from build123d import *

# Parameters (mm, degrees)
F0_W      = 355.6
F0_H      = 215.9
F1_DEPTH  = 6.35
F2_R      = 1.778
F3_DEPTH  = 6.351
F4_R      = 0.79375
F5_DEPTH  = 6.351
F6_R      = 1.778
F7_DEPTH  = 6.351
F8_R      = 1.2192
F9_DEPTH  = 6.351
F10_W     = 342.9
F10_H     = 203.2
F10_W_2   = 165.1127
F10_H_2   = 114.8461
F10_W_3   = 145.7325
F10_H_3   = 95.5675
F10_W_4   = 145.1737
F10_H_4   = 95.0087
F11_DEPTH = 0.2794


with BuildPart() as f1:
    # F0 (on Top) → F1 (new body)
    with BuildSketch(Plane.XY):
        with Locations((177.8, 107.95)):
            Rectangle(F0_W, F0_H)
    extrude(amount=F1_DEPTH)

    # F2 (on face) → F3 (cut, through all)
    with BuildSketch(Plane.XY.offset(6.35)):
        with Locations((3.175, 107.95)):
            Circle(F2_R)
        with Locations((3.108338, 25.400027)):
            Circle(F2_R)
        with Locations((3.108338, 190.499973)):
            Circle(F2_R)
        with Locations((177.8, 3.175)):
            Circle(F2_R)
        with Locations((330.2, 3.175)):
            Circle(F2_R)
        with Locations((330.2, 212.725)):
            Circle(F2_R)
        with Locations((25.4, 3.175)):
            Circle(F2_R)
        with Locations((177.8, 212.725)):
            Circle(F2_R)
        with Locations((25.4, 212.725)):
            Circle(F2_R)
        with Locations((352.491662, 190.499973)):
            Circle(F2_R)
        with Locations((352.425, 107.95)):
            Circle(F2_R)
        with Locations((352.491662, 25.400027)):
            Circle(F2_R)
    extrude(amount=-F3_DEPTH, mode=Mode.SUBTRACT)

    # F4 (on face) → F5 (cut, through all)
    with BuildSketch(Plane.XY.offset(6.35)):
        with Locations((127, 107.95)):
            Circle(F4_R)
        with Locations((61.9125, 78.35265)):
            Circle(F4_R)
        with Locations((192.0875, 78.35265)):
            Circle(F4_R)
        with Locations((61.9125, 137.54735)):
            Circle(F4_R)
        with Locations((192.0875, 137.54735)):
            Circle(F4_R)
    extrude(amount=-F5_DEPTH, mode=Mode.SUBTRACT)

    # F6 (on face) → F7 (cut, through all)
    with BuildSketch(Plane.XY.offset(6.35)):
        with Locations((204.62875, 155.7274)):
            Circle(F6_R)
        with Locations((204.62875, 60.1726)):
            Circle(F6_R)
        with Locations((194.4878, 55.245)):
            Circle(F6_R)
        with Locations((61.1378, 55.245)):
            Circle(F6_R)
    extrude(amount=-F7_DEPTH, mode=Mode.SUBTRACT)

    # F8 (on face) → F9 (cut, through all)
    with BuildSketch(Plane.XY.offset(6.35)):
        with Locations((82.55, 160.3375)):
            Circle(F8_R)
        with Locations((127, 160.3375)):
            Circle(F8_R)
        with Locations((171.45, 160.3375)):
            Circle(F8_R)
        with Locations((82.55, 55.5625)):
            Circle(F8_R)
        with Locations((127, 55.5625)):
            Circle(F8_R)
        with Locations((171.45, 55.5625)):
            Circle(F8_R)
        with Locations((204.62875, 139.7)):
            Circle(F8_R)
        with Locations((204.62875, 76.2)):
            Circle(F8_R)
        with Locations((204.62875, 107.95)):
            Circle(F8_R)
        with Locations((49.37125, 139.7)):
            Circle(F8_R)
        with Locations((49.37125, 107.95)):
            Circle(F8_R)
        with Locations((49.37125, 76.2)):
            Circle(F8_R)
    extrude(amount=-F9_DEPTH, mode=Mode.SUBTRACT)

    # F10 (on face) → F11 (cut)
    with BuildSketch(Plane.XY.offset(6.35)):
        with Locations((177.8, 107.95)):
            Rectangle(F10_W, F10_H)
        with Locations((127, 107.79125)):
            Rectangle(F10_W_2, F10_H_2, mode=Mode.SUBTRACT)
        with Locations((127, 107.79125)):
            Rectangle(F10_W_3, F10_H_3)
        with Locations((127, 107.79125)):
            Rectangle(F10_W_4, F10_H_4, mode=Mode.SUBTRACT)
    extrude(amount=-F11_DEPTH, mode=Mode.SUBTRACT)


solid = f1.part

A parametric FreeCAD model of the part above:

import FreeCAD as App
import Part
import Sketcher
Q = App.Units.Quantity

doc = App.newDocument("Part")
body = doc.addObject("PartDesign::Body", "Body")

# Sketch on XY plane
sketch1 = doc.addObject("Sketcher::SketchObject", "Sketch")
body.addObject(sketch1)
sketch1.AttachmentSupport = (doc.XY_Plane, [""])
sketch1.MapMode = "FlatFace"
sketch1.addGeometry([
    Part.LineSegment(App.Vector(0, 216, 0), App.Vector(0, 0, 0)),
    Part.LineSegment(App.Vector(0, 0, 0), App.Vector(356, 0, 0)),
    Part.LineSegment(App.Vector(356, 0, 0), App.Vector(356, 216, 0)),
    Part.LineSegment(App.Vector(356, 216, 0), App.Vector(0, 216, 0)),
], False)
sketch1.addConstraint([
    Sketcher.Constraint("Coincident", 0, 2, 1, 1),
    Sketcher.Constraint("Coincident", 1, 2, 2, 1),
    Sketcher.Constraint("Coincident", 2, 2, 3, 1),
    Sketcher.Constraint("Coincident", 3, 2, 0, 1),
    Sketcher.Constraint("Vertical", 0),
    Sketcher.Constraint("Horizontal", 1),
    Sketcher.Constraint("Vertical", 2),
    Sketcher.Constraint("Horizontal", 3),
    Sketcher.Constraint("Coincident", 0, 2, -1, 1),
    Sketcher.Constraint("DistanceX", 1, 1, 1, 2, Q("14 in")),
    Sketcher.Constraint("DistanceY", 0, 2, 0, 1, Q("8.5 in")),
])
pad1 = doc.addObject("PartDesign::Pad", "Pad")
body.addObject(pad1)
pad1.Profile = sketch1
pad1.Length = Q("0.25 in")

# Sketch on XY plane
sketch2 = doc.addObject("Sketcher::SketchObject", "Sketch001")
body.addObject(sketch2)
sketch2.AttachmentSupport = (doc.XY_Plane, [""])
sketch2.MapMode = "FlatFace"
sketch2.AttachmentOffset = App.Placement(App.Vector(0, 0, 0.25 * 25.4), App.Rotation())
sketch2.addGeometry([
    Part.Circle(App.Vector(3.2, 108, 0), App.Vector(0, 0, 1), 1.8),  # 0
    Part.Circle(App.Vector(3.1, 25.4, 0), App.Vector(0, 0, 1), 1.8),  # 1
    Part.Circle(App.Vector(3.1, 190.5, 0), App.Vector(0, 0, 1), 1.8),  # 2
    Part.Circle(App.Vector(177.8, 3.2, 0), App.Vector(0, 0, 1), 1.8),  # 3
    Part.Circle(App.Vector(330.2, 3.2, 0), App.Vector(0, 0, 1), 1.8),  # 4
    Part.Circle(App.Vector(330.2, 212.7, 0), App.Vector(0, 0, 1), 1.8),  # 5
    Part.Circle(App.Vector(25.4, 3.2, 0), App.Vector(0, 0, 1), 1.8),  # 6
    Part.Circle(App.Vector(177.8, 212.7, 0), App.Vector(0, 0, 1), 1.8),  # 7
    Part.Circle(App.Vector(25.4, 212.7, 0), App.Vector(0, 0, 1), 1.8),  # 8
    Part.Circle(App.Vector(352.5, 190.5, 0), App.Vector(0, 0, 1), 1.8),  # 9
    Part.Circle(App.Vector(352.4, 108, 0), App.Vector(0, 0, 1), 1.8),  # 10
    Part.Circle(App.Vector(352.5, 25.4, 0), App.Vector(0, 0, 1), 1.8),  # 11
], False)
sketch2.addConstraint([
    Sketcher.Constraint("Equal", 0, 1),
    Sketcher.Constraint("Equal", 1, 2),
    Sketcher.Constraint("Equal", 2, 3),
    Sketcher.Constraint("Equal", 3, 4),
    Sketcher.Constraint("Equal", 4, 5),
    Sketcher.Constraint("Equal", 5, 6),
    Sketcher.Constraint("Equal", 6, 7),
    Sketcher.Constraint("Equal", 7, 8),
    Sketcher.Constraint("Equal", 8, 9),
    Sketcher.Constraint("Equal", 9, 10),
    Sketcher.Constraint("Equal", 10, 11),
    Sketcher.Constraint("Horizontal", 3, 3, 4, 3),
    Sketcher.Constraint("Horizontal", 4, 3, 6, 3),
    Sketcher.Constraint("Horizontal", 5, 3, 7, 3),
    Sketcher.Constraint("Horizontal", 7, 3, 8, 3),
    Sketcher.Constraint("Horizontal", 2, 3, 9, 3),
    Sketcher.Constraint("Horizontal", 0, 3, 10, 3),
    Sketcher.Constraint("Horizontal", 1, 3, 11, 3),
    Sketcher.Constraint("Vertical", 1, 3, 2, 3),
    Sketcher.Constraint("Vertical", 4, 3, 5, 3),
    Sketcher.Constraint("Vertical", 3, 3, 7, 3),
    Sketcher.Constraint("Vertical", 6, 3, 8, 3),
    Sketcher.Constraint("Vertical", 9, 3, 11, 3),
    Sketcher.Constraint("Diameter", 0, Q("0.14 in")),
    Sketcher.Constraint("DistanceX", -1, 1, 3, 3, Q("7 in")),
    Sketcher.Constraint("DistanceX", -1, 1, 4, 3, Q("13 in")),
    Sketcher.Constraint("DistanceX", -1, 1, 6, 3, Q("1 in")),
    Sketcher.Constraint("DistanceY", -1, 1, 0, 3, Q("4.25 in")),
    Sketcher.Constraint("DistanceY", 4, 3, 5, 3, Q("8.25 in")),
    Sketcher.Constraint("DistanceX", -1, 1, 0, 3, Q("0.125 in")),
    Sketcher.Constraint("DistanceY", -1, 1, 3, 3, Q("0.125 in")),
    Sketcher.Constraint("DistanceX", -1, 1, 10, 3, Q("13.875 in")),
    Sketcher.Constraint("DistanceX", -1, 1, 9, 3, 352.491662),
    Sketcher.Constraint("DistanceX", 1, 3, 3, 3, 174.691662),
    Sketcher.Constraint("DistanceY", -1, 1, 1, 3, 25.400027),
    Sketcher.Constraint("DistanceY", -1, 1, 2, 3, 190.499973),
])
pocket1 = doc.addObject("PartDesign::Pocket", "Pocket")
body.addObject(pocket1)
pocket1.Profile = sketch2
pocket1.Type = "ThroughAll"

# Sketch on XY plane
sketch3 = doc.addObject("Sketcher::SketchObject", "Sketch002")
body.addObject(sketch3)
sketch3.AttachmentSupport = (doc.XY_Plane, [""])
sketch3.MapMode = "FlatFace"
sketch3.AttachmentOffset = App.Placement(App.Vector(0, 0, 0.25 * 25.4), App.Rotation())
sketch3.addGeometry([
    Part.Circle(App.Vector(127, 108, 0), App.Vector(0, 0, 1), 0.8),  # 0
    Part.Circle(App.Vector(61.9, 78.4, 0), App.Vector(0, 0, 1), 0.8),  # 1
    Part.Circle(App.Vector(192.1, 78.4, 0), App.Vector(0, 0, 1), 0.8),  # 2
    Part.Circle(App.Vector(61.9, 137.5, 0), App.Vector(0, 0, 1), 0.8),  # 3
    Part.Circle(App.Vector(192.1, 137.5, 0), App.Vector(0, 0, 1), 0.8),  # 4
], False)
sketch3.addConstraint([
    Sketcher.Constraint("Equal", 0, 1),
    Sketcher.Constraint("Equal", 1, 2),
    Sketcher.Constraint("Equal", 2, 3),
    Sketcher.Constraint("Equal", 3, 4),
    Sketcher.Constraint("Horizontal", 1, 3, 2, 3),
    Sketcher.Constraint("Horizontal", 3, 3, 4, 3),
    Sketcher.Constraint("Vertical", 1, 3, 3, 3),
    Sketcher.Constraint("Vertical", 2, 3, 4, 3),
    Sketcher.Constraint("Diameter", 0, Q("0.0625 in")),
    Sketcher.Constraint("DistanceX", -1, 1, 0, 3, Q("5 in")),
    Sketcher.Constraint("DistanceY", -1, 1, 0, 3, Q("4.25 in")),
    Sketcher.Constraint("DistanceX", -1, 1, 1, 3, Q("2.4375 in")),
    Sketcher.Constraint("DistanceX", -1, 1, 2, 3, Q("7.5625 in")),
    Sketcher.Constraint("DistanceY", 1, 3, 3, 3, Q("2.3305 in")),
    Sketcher.Constraint("DistanceY", -1, 1, 1, 3, 78.35265),
])
pocket2 = doc.addObject("PartDesign::Pocket", "Pocket001")
body.addObject(pocket2)
pocket2.Profile = sketch3
pocket2.Type = "ThroughAll"

# Sketch on XY plane
sketch4 = doc.addObject("Sketcher::SketchObject", "Sketch003")
body.addObject(sketch4)
sketch4.AttachmentSupport = (doc.XY_Plane, [""])
sketch4.MapMode = "FlatFace"
sketch4.AttachmentOffset = App.Placement(App.Vector(0, 0, 0.25 * 25.4), App.Rotation())
sketch4.addGeometry([
    Part.Circle(App.Vector(204.6, 155.7, 0), App.Vector(0, 0, 1), 1.8),
    Part.Circle(App.Vector(204.6, 60.2, 0), App.Vector(0, 0, 1), 1.8),
    Part.Circle(App.Vector(194.5, 55.2, 0), App.Vector(0, 0, 1), 1.8),
    Part.Circle(App.Vector(61.1, 55.2, 0), App.Vector(0, 0, 1), 1.8),
], False)
sketch4.addConstraint([
    Sketcher.Constraint("Equal", 0, 1),
    Sketcher.Constraint("Equal", 1, 2),
    Sketcher.Constraint("Equal", 2, 3),
    Sketcher.Constraint("Horizontal", 2, 3, 3, 3),
    Sketcher.Constraint("Vertical", 0, 3, 1, 3),
    Sketcher.Constraint("Diameter", 0, Q("0.14 in")),
    Sketcher.Constraint("DistanceX", 3, 3, 2, 3, Q("5.25 in")),
    Sketcher.Constraint("DistanceY", -1, 1, 0, 3, Q("6.131 in")),
    Sketcher.Constraint("DistanceY", -1, 1, 1, 3, Q("2.369 in")),
    Sketcher.Constraint("DistanceX", -1, 1, 2, 3, Q("7.657 in")),
    Sketcher.Constraint("DistanceY", -1, 1, 2, 3, Q("2.175 in")),
    Sketcher.Constraint("DistanceX", -1, 1, 0, 3, 204.62875),
])
pocket3 = doc.addObject("PartDesign::Pocket", "Pocket002")
body.addObject(pocket3)
pocket3.Profile = sketch4
pocket3.Type = "ThroughAll"

# Sketch on XY plane
sketch5 = doc.addObject("Sketcher::SketchObject", "Sketch004")
body.addObject(sketch5)
sketch5.AttachmentSupport = (doc.XY_Plane, [""])
sketch5.MapMode = "FlatFace"
sketch5.AttachmentOffset = App.Placement(App.Vector(0, 0, 0.25 * 25.4), App.Rotation())
sketch5.addGeometry([
    Part.Circle(App.Vector(82.5, 160.3, 0), App.Vector(0, 0, 1), 1.2),  # 0
    Part.Circle(App.Vector(127, 160.3, 0), App.Vector(0, 0, 1), 1.2),  # 1
    Part.Circle(App.Vector(171.4, 160.3, 0), App.Vector(0, 0, 1), 1.2),  # 2
    Part.Circle(App.Vector(82.5, 55.6, 0), App.Vector(0, 0, 1), 1.2),  # 3
    Part.Circle(App.Vector(127, 55.6, 0), App.Vector(0, 0, 1), 1.2),  # 4
    Part.Circle(App.Vector(171.4, 55.6, 0), App.Vector(0, 0, 1), 1.2),  # 5
    Part.Circle(App.Vector(204.6, 139.7, 0), App.Vector(0, 0, 1), 1.2),  # 6
    Part.Circle(App.Vector(204.6, 76.2, 0), App.Vector(0, 0, 1), 1.2),  # 7
    Part.Circle(App.Vector(204.6, 108, 0), App.Vector(0, 0, 1), 1.2),  # 8
    Part.Circle(App.Vector(49.4, 139.7, 0), App.Vector(0, 0, 1), 1.2),  # 9
    Part.Circle(App.Vector(49.4, 108, 0), App.Vector(0, 0, 1), 1.2),  # 10
    Part.Circle(App.Vector(49.4, 76.2, 0), App.Vector(0, 0, 1), 1.2),  # 11
], False)
sketch5.addConstraint([
    Sketcher.Constraint("Equal", 0, 1),
    Sketcher.Constraint("Equal", 1, 2),
    Sketcher.Constraint("Equal", 2, 3),
    Sketcher.Constraint("Equal", 3, 4),
    Sketcher.Constraint("Equal", 4, 5),
    Sketcher.Constraint("Equal", 5, 6),
    Sketcher.Constraint("Equal", 6, 7),
    Sketcher.Constraint("Equal", 7, 8),
    Sketcher.Constraint("Equal", 8, 9),
    Sketcher.Constraint("Equal", 9, 10),
    Sketcher.Constraint("Equal", 10, 11),
    Sketcher.Constraint("Horizontal", 0, 3, 1, 3),
    Sketcher.Constraint("Horizontal", 1, 3, 2, 3),
    Sketcher.Constraint("Horizontal", 3, 3, 4, 3),
    Sketcher.Constraint("Horizontal", 4, 3, 5, 3),
    Sketcher.Constraint("Horizontal", 6, 3, 9, 3),
    Sketcher.Constraint("Horizontal", 8, 3, 10, 3),
    Sketcher.Constraint("Horizontal", 7, 3, 11, 3),
    Sketcher.Constraint("Vertical", 0, 3, 3, 3),
    Sketcher.Constraint("Vertical", 1, 3, 4, 3),
    Sketcher.Constraint("Vertical", 2, 3, 5, 3),
    Sketcher.Constraint("Vertical", 6, 3, 7, 3),
    Sketcher.Constraint("Vertical", 7, 3, 8, 3),
    Sketcher.Constraint("Vertical", 9, 3, 10, 3),
    Sketcher.Constraint("Vertical", 10, 3, 11, 3),
    Sketcher.Constraint("Diameter", 0, Q("0.096 in")),
    Sketcher.Constraint("DistanceX", -1, 1, 1, 3, Q("5 in")),
    Sketcher.Constraint("DistanceY", -1, 1, 7, 3, Q("3 in")),
    Sketcher.Constraint("DistanceY", -1, 1, 6, 3, Q("5.5 in")),
    Sketcher.Constraint("DistanceX", 0, 3, 2, 3, Q("3.5 in")),
    Sketcher.Constraint("DistanceX", -1, 1, 0, 3, Q("3.25 in")),
    Sketcher.Constraint("DistanceY", -1, 1, 8, 3, Q("4.25 in")),
    Sketcher.Constraint("DistanceY", -1, 1, 0, 3, Q("6.3125 in")),
    Sketcher.Constraint("DistanceY", -1, 1, 3, 3, Q("2.1875 in")),
    Sketcher.Constraint("DistanceX", -1, 1, 6, 3, 204.62875),
    Sketcher.Constraint("DistanceX", -1, 1, 9, 3, 49.37125),
])
pocket4 = doc.addObject("PartDesign::Pocket", "Pocket003")
body.addObject(pocket4)
pocket4.Profile = sketch5
pocket4.Type = "ThroughAll"

# Sketch on XY plane
sketch6 = doc.addObject("Sketcher::SketchObject", "Sketch005")
body.addObject(sketch6)
sketch6.AttachmentSupport = (doc.XY_Plane, [""])
sketch6.MapMode = "FlatFace"
sketch6.AttachmentOffset = App.Placement(App.Vector(0, 0, 0.25 * 25.4), App.Rotation())
sketch6.addGeometry([
    Part.LineSegment(App.Vector(6, 210, 0), App.Vector(6, 6, 0)),  # 0
    Part.LineSegment(App.Vector(6, 6, 0), App.Vector(349, 6, 0)),  # 1
    Part.LineSegment(App.Vector(349, 6, 0), App.Vector(349, 210, 0)),  # 2
    Part.LineSegment(App.Vector(349, 210, 0), App.Vector(6, 210, 0)),  # 3
    Part.LineSegment(App.Vector(210, 50, 0), App.Vector(44, 50, 0)),  # 4
    Part.LineSegment(App.Vector(44, 50, 0), App.Vector(44, 165, 0)),  # 5
    Part.LineSegment(App.Vector(44, 165, 0), App.Vector(210, 165, 0)),  # 6
    Part.LineSegment(App.Vector(210, 165, 0), App.Vector(210, 50, 0)),  # 7
    Part.LineSegment(App.Vector(54, 156, 0), App.Vector(54, 60, 0)),  # 8
    Part.LineSegment(App.Vector(54, 60, 0), App.Vector(200, 60, 0)),  # 9
    Part.LineSegment(App.Vector(200, 60, 0), App.Vector(200, 156, 0)),  # 10
    Part.LineSegment(App.Vector(200, 156, 0), App.Vector(54, 156, 0)),  # 11
    Part.LineSegment(App.Vector(200, 60, 0), App.Vector(54, 60, 0)),  # 12
    Part.LineSegment(App.Vector(54, 60, 0), App.Vector(54, 155, 0)),  # 13
    Part.LineSegment(App.Vector(54, 155, 0), App.Vector(200, 155, 0)),  # 14
    Part.LineSegment(App.Vector(200, 155, 0), App.Vector(200, 60, 0)),  # 15
], False)
sketch6.addConstraint([
    Sketcher.Constraint("Coincident", 0, 2, 1, 1),
    Sketcher.Constraint("Coincident", 1, 2, 2, 1),
    Sketcher.Constraint("Coincident", 2, 2, 3, 1),
    Sketcher.Constraint("Coincident", 3, 2, 0, 1),
    Sketcher.Constraint("Coincident", 4, 2, 5, 1),
    Sketcher.Constraint("Coincident", 5, 2, 6, 1),
    Sketcher.Constraint("Coincident", 6, 2, 7, 1),
    Sketcher.Constraint("Coincident", 7, 2, 4, 1),
    Sketcher.Constraint("Coincident", 8, 2, 9, 1),
    Sketcher.Constraint("Coincident", 9, 2, 10, 1),
    Sketcher.Constraint("Coincident", 10, 2, 11, 1),
    Sketcher.Constraint("Coincident", 11, 2, 8, 1),
    Sketcher.Constraint("Coincident", 12, 2, 13, 1),
    Sketcher.Constraint("Coincident", 13, 2, 14, 1),
    Sketcher.Constraint("Coincident", 14, 2, 15, 1),
    Sketcher.Constraint("Coincident", 15, 2, 12, 1),
    Sketcher.Constraint("Vertical", 0),
    Sketcher.Constraint("Horizontal", 1),
    Sketcher.Constraint("Vertical", 2),
    Sketcher.Constraint("Horizontal", 3),
    Sketcher.Constraint("Horizontal", 4),
    Sketcher.Constraint("Vertical", 5),
    Sketcher.Constraint("Horizontal", 6),
    Sketcher.Constraint("Vertical", 7),
    Sketcher.Constraint("Vertical", 8),
    Sketcher.Constraint("Horizontal", 9),
    Sketcher.Constraint("Vertical", 10),
    Sketcher.Constraint("Horizontal", 11),
    Sketcher.Constraint("Horizontal", 12),
    Sketcher.Constraint("Vertical", 13),
    Sketcher.Constraint("Horizontal", 14),
    Sketcher.Constraint("Vertical", 15),
    Sketcher.Constraint("DistanceY", 0, 2, 0, 1, Q("8 in")),
    Sketcher.Constraint("DistanceX", 1, 1, 1, 2, Q("13.5 in")),
    Sketcher.Constraint("DistanceX", -1, 1, 0, 2, Q("0.25 in")),
    Sketcher.Constraint("DistanceY", -1, 1, 0, 2, Q("0.25 in")),
    Sketcher.Constraint("DistanceX", 4, 2, 4, 1, Q("6.5005 in")),
    Sketcher.Constraint("DistanceX", 9, 1, 9, 2, Q("5.7375 in")),
    Sketcher.Constraint("DistanceX", 12, 2, 12, 1, Q("5.7155 in")),
    Sketcher.Constraint("DistanceY", 5, 1, 5, 2, Q("4.5215 in")),
    Sketcher.Constraint("DistanceY", 8, 2, 8, 1, Q("3.7625 in")),
    Sketcher.Constraint("DistanceY", 13, 1, 13, 2, Q("3.7405 in")),
    Sketcher.Constraint("DistanceY", -1, 1, 4, 2, Q("1.983 in")),
    Sketcher.Constraint("DistanceY", -1, 1, 10, 2, Q("6.125 in")),
    Sketcher.Constraint("DistanceY", -1, 1, 13, 2, Q("6.114 in")),
    Sketcher.Constraint("DistanceX", 8, 2, 7, 2, Q("6.119 in")),
    Sketcher.Constraint("DistanceX", 8, 2, 12, 2, Q("0.011 in")),
    Sketcher.Constraint("DistanceX", -1, 1, 4, 2, 44.44365),
])
pocket5 = doc.addObject("PartDesign::Pocket", "Pocket004")
body.addObject(pocket5)
pocket5.Profile = sketch6
pocket5.Length = Q("0.011 in")

doc.recompute()
